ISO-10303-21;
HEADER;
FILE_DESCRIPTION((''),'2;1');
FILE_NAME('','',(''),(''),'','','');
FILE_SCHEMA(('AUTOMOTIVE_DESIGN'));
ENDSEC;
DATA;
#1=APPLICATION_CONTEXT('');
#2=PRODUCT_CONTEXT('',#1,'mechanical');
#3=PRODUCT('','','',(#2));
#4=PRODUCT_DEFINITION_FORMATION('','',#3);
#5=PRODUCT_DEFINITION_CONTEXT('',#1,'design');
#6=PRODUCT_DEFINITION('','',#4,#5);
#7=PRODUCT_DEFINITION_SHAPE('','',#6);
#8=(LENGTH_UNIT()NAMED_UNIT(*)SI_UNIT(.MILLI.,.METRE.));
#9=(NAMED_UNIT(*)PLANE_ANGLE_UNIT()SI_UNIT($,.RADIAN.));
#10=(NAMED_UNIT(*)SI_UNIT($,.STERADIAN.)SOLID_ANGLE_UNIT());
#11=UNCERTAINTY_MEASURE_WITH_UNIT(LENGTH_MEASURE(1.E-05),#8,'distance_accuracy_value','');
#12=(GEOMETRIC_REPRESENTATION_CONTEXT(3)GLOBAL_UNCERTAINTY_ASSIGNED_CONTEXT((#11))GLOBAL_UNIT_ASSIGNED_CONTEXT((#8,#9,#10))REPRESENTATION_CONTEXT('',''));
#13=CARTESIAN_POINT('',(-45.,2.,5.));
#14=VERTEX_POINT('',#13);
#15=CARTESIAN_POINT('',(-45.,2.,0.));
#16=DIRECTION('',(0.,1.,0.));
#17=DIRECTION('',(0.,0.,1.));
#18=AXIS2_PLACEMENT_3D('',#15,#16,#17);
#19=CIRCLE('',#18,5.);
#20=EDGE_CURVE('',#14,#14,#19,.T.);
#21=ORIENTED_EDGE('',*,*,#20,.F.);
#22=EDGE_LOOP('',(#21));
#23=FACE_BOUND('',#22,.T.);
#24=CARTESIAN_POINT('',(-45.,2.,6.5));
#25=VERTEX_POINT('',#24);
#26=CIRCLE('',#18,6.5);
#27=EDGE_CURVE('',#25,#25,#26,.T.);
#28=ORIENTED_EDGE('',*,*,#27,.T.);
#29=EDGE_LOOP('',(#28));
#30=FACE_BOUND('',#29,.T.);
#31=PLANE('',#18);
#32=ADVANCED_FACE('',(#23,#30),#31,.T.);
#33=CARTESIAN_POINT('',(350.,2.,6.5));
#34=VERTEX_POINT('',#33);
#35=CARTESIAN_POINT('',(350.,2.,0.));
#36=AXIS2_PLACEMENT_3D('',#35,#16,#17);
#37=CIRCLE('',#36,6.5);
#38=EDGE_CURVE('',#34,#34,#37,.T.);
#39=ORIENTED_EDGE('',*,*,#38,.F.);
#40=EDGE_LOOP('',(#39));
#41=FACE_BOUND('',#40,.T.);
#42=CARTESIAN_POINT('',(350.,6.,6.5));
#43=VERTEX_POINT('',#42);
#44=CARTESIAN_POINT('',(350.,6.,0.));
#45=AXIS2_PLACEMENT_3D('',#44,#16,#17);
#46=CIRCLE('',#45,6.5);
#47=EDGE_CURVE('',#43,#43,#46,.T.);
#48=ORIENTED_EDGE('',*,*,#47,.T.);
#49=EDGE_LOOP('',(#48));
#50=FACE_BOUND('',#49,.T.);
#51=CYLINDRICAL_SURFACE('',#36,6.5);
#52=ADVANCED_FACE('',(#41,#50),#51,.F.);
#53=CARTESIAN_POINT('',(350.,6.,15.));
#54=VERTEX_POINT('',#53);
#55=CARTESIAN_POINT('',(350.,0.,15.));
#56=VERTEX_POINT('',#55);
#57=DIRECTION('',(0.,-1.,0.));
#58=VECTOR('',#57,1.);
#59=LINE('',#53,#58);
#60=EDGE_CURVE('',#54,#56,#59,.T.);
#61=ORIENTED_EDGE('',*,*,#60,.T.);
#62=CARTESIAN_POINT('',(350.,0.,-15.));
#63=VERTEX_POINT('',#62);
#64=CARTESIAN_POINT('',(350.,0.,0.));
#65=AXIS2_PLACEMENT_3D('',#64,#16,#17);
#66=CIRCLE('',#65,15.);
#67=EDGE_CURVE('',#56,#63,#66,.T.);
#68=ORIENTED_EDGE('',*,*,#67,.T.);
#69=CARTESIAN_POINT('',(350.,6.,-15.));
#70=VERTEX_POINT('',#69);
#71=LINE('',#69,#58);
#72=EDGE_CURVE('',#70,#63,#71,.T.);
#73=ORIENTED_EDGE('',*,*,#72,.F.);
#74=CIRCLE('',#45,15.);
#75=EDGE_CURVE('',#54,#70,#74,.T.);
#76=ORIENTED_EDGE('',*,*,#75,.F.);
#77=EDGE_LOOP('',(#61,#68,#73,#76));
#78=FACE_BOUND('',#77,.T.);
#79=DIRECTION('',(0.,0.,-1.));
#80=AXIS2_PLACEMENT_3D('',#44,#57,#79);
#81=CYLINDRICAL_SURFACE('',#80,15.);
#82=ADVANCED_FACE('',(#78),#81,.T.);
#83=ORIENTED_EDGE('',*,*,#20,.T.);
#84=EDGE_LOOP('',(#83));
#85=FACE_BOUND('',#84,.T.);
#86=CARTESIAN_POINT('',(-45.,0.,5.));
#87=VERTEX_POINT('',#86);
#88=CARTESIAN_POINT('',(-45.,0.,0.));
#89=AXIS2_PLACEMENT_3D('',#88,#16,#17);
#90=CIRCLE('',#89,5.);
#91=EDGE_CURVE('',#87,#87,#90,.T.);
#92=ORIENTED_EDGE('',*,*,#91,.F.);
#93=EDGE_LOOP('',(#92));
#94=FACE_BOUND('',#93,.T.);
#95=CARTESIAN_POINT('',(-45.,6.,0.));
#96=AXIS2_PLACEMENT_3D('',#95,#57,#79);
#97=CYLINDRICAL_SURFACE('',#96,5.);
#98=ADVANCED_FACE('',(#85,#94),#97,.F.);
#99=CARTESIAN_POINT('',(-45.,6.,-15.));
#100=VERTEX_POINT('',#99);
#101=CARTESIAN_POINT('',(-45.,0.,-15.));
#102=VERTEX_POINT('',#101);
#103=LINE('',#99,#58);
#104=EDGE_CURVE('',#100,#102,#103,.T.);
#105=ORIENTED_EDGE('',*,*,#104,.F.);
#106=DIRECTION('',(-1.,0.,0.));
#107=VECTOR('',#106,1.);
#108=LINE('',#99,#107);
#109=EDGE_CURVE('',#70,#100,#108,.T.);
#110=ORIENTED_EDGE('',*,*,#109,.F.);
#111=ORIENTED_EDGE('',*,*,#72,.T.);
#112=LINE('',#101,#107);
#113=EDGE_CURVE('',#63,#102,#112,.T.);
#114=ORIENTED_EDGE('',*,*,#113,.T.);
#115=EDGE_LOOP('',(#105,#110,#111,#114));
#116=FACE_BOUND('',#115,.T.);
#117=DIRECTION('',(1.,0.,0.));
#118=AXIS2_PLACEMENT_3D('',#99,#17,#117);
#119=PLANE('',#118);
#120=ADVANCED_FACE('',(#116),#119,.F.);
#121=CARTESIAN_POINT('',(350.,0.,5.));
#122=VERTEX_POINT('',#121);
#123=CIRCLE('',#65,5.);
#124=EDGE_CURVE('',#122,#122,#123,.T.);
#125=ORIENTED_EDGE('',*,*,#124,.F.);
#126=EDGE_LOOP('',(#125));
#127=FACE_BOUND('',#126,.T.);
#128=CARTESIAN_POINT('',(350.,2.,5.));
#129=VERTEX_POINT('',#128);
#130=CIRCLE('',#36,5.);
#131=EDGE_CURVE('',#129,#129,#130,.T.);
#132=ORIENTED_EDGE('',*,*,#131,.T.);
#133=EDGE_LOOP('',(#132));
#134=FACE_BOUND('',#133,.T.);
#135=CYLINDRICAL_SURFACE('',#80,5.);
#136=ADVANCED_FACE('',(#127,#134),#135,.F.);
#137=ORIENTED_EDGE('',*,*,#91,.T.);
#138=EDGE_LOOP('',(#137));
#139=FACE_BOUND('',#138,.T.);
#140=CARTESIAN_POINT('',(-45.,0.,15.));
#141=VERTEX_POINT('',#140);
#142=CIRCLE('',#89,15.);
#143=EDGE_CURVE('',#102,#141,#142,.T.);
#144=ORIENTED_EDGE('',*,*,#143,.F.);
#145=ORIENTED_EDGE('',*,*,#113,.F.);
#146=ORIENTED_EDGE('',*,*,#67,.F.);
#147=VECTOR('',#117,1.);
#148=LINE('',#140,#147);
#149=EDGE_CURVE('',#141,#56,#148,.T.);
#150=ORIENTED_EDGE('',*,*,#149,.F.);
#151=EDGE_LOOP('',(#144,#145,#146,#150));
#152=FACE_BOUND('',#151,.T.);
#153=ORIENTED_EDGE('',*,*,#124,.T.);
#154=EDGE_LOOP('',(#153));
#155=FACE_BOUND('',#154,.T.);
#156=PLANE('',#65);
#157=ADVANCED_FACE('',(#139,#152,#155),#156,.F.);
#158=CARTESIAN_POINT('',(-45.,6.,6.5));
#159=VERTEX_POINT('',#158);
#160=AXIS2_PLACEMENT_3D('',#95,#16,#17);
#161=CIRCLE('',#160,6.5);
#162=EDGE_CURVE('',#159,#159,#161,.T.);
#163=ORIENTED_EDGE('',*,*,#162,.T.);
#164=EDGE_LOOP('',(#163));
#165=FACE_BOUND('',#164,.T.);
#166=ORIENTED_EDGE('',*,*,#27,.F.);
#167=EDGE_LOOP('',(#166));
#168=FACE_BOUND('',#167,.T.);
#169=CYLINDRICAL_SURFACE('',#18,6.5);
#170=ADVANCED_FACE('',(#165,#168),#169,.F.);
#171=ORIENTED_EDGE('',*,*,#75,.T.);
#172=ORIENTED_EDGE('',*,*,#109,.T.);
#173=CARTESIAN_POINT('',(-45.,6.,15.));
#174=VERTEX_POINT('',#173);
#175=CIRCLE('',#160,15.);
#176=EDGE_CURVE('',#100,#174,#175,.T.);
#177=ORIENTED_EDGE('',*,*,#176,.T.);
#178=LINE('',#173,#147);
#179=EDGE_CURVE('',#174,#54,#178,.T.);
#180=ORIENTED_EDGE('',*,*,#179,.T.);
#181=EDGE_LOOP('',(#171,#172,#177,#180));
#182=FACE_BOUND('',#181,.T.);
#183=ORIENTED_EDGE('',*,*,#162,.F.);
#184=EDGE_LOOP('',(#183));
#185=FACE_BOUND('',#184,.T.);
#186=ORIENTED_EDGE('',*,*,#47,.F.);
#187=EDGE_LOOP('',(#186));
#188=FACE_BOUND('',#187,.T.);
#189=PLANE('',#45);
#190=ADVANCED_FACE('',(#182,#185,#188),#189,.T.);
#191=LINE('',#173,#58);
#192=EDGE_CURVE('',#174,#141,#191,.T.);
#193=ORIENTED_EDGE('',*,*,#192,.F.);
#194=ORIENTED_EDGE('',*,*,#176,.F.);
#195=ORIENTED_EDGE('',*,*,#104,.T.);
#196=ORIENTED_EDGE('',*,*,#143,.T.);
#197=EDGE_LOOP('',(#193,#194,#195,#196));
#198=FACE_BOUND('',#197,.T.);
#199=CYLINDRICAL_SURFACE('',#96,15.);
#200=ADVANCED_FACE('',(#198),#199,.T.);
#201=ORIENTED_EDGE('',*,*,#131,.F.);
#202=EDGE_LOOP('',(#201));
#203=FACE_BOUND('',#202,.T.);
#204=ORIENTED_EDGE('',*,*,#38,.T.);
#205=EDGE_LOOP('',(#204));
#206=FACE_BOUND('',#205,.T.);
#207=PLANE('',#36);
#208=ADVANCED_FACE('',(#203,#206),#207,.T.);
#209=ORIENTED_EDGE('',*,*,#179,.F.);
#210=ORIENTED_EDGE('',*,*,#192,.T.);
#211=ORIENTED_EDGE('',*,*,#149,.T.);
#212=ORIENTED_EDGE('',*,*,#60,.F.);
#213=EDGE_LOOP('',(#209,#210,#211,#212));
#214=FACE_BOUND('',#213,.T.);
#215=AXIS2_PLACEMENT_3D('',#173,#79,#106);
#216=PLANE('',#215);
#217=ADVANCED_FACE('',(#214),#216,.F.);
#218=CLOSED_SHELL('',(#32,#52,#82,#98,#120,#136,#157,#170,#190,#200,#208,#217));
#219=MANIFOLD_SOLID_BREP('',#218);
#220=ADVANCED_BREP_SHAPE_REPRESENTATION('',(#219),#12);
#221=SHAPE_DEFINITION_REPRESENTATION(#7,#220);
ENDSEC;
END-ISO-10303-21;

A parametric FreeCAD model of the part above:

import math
import FreeCAD as App
import Part
import Sketcher

V = App.Vector
Q = App.Units.Quantity

doc = App.newDocument("Part")
body = doc.addObject("PartDesign::Body", "Body")

# Sketch on XZ plane
sketch1 = body.newObject("Sketcher::SketchObject", "Sketch")
sketch1.AttachmentSupport = (doc.getObject("XZ_Plane"), [""])
sketch1.MapMode = "FlatFace"
sketch1.addGeometry(Part.LineSegment(V(350, -15, 0), V(-45, -15, 0)), False)
sketch1.addGeometry(Part.ArcOfCircle(Part.Circle(V(-45, 0, 0), V(0, 0, 1), 15), math.radians(90), math.radians(270)), False)
sketch1.addGeometry(Part.LineSegment(V(-45, 15, 0), V(350, 15, 0)), False)
sketch1.addGeometry(Part.ArcOfCircle(Part.Circle(V(350, 0, 0), V(0, 0, 1), 15), math.radians(-90), math.radians(90)), False)
sketch1.addGeometry(Part.Circle(V(350, 0, 0), V(0, 0, 1), 5), False)
sketch1.addGeometry(Part.Circle(V(-45, 0, 0), V(0, 0, 1), 5), False)
sketch1.addConstraint(Sketcher.Constraint("Tangent", 0, 2, 1, 2))
sketch1.addConstraint(Sketcher.Constraint("Tangent", 1, 1, 2, 1))
sketch1.addConstraint(Sketcher.Constraint("Tangent", 2, 2, 3, 2))
sketch1.addConstraint(Sketcher.Constraint("Tangent", 3, 1, 0, 1))
sketch1.addConstraint(Sketcher.Constraint("Horizontal", 0))
sketch1.addConstraint(Sketcher.Constraint("Horizontal", 2))
sketch1.addConstraint(Sketcher.Constraint("Coincident", 4, 3, 3, 3))
sketch1.addConstraint(Sketcher.Constraint("Coincident", 5, 3, 1, 3))
sketch1.addConstraint(Sketcher.Constraint("Equal", 4, 5))
sketch1.addConstraint(Sketcher.Constraint("PointOnObject", 1, 3, -1))
sketch1.addConstraint(Sketcher.Constraint("Diameter", 4, Q("10 mm")))
sketch1.addConstraint(Sketcher.Constraint("Radius", 1, Q("15 mm")))
sketch1.addConstraint(Sketcher.Constraint("DistanceX", 0, 2, 0, 1, Q("395 mm")))
sketch1.addConstraint(Sketcher.Constraint("DistanceX", 1, 3, -1, 1, Q("45 mm")))
pad1 = body.newObject("PartDesign::Pad", "Pad")
pad1.Profile = sketch1
pad1.Length = 6
pad1.Reversed = True

# Sketch on XZ plane
sketch2 = body.newObject("Sketcher::SketchObject", "Sketch001")
sketch2.AttachmentSupport = (doc.getObject("XZ_Plane"), [""])
sketch2.MapMode = "FlatFace"
sketch2.AttachmentOffset = App.Placement(V(0, 0, -6), App.Rotation())
sketch2.addGeometry(Part.Circle(V(-45, 0, 0), V(0, 0, 1), 6), False)
sketch2.addGeometry(Part.Circle(V(350, 0, 0), V(0, 0, 1), 6), False)
sketch2.addConstraint(Sketcher.Constraint("Equal", 0, 1))
sketch2.addConstraint(Sketcher.Constraint("PointOnObject", 0, 3, -1))
sketch2.addConstraint(Sketcher.Constraint("PointOnObject", 1, 3, -1))
sketch2.addConstraint(Sketcher.Constraint("Diameter", 0, Q("13 mm")))
sketch2.addConstraint(Sketcher.Constraint("DistanceX", 0, 3, -1, 1, Q("45 mm")))
sketch2.addConstraint(Sketcher.Constraint("DistanceX", -1, 1, 1, 3, Q("350 mm")))
pocket1 = body.newObject("PartDesign::Pocket", "Pocket")
pocket1.Profile = sketch2
pocket1.Length = 4
pocket1.Reversed = True

doc.recompute()
